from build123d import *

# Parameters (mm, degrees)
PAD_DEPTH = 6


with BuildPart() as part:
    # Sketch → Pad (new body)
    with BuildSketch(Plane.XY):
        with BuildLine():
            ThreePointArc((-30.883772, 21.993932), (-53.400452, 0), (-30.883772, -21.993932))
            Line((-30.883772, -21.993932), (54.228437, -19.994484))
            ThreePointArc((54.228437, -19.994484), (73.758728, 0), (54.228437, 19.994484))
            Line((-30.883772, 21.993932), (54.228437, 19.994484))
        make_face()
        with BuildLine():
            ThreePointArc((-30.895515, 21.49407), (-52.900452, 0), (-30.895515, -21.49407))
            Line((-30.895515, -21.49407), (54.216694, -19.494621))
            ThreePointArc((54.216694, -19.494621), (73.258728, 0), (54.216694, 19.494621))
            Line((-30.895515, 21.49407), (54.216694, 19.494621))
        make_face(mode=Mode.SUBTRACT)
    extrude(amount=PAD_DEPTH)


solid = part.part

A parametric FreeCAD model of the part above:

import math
import FreeCAD as App
import Part
import Sketcher

doc = App.newDocument("Part")
params = doc.addObject("Spreadsheet::Sheet", "Params")
for row, (alias, value) in enumerate([
    ("sketch1_radius", "22 mm"),
    ("sketch1_radius2", "20 mm"),
    ("sketch1_radius3", "21.5 mm"),
    ("pad1_length", "6 mm"),
], start=1):
    params.set(f"A{row}", alias)
    params.set(f"B{row}", "=" + value)
    params.setAlias(f"B{row}", alias)

body = doc.addObject("PartDesign::Body", "Body")

sketch1 = doc.addObject("Sketcher::SketchObject", "Sketch")
body.addObject(sketch1)
sketch1.AttachmentSupport = (doc.XY_Plane, [""])
sketch1.MapMode = "FlatFace"
sketch1.addGeometry([
    Part.ArcOfCircle(Part.Circle(App.Vector(-31, 0, 0), App.Vector(0, 0, 1), 22), math.radians(89), math.radians(271)),
    Part.LineSegment(App.Vector(-31, -22, 0), App.Vector(54, -20, 0)),
    Part.ArcOfCircle(Part.Circle(App.Vector(54, 0, 0), App.Vector(0, 0, 1), 20), math.radians(-89), math.radians(89)),
    Part.LineSegment(App.Vector(54, 20, 0), App.Vector(-31, 22, 0)),
    Part.ArcOfCircle(Part.Circle(App.Vector(-31, 0, 0), App.Vector(0, 0, 1), 22), math.radians(89), math.radians(271)),
    Part.LineSegment(App.Vector(-31, 21, 0), App.Vector(54, 19, 0)),
    Part.ArcOfCircle(Part.Circle(App.Vector(54, 0, 0), App.Vector(0, 0, 1), 19), math.radians(-89), math.radians(89)),
    Part.LineSegment(App.Vector(54, -19, 0), App.Vector(-31, -21, 0)),
], False)
sketch1.addConstraint([
    Sketcher.Constraint("Tangent", 0, 2, 1, 1),
    Sketcher.Constraint("Tangent", 1, 2, 2, 1),
    Sketcher.Constraint("Tangent", 2, 2, 3, 1),
    Sketcher.Constraint("Tangent", 3, 2, 0, 1),
    Sketcher.Constraint("Tangent", 4, 1, 5, 1),
    Sketcher.Constraint("Tangent", 5, 2, 6, 2),
    Sketcher.Constraint("Tangent", 6, 1, 7, 1),
    Sketcher.Constraint("Tangent", 7, 2, 4, 2),
    Sketcher.Constraint("Coincident", 4, 3, 0, 3),
    Sketcher.Constraint("Coincident", 6, 3, 2, 3),
    Sketcher.Constraint("Symmetric", 1, 2, 2, 2, -1),
    Sketcher.Constraint("Parallel", 3, 5),
    Sketcher.Constraint("Radius", 0, 22.0),
    Sketcher.Constraint("Radius", 2, 20.0),
    Sketcher.Constraint("Radius", 4, 21.5),
    Sketcher.Constraint("DistanceX", 0, 2, 2, 3, 84.6425),
    Sketcher.Constraint("DistanceX", 0, 3, -1, 1, 31.400452),
])
sketch1.setExpression("Constraints[12]", "Params.sketch1_radius")
sketch1.setExpression("Constraints[13]", "Params.sketch1_radius2")
sketch1.setExpression("Constraints[14]", "Params.sketch1_radius3")
pad1 = doc.addObject("PartDesign::Pad", "Pad")
body.addObject(pad1)
pad1.Profile = sketch1
pad1.setExpression("Length", "Params.pad1_length")

doc.recompute()
